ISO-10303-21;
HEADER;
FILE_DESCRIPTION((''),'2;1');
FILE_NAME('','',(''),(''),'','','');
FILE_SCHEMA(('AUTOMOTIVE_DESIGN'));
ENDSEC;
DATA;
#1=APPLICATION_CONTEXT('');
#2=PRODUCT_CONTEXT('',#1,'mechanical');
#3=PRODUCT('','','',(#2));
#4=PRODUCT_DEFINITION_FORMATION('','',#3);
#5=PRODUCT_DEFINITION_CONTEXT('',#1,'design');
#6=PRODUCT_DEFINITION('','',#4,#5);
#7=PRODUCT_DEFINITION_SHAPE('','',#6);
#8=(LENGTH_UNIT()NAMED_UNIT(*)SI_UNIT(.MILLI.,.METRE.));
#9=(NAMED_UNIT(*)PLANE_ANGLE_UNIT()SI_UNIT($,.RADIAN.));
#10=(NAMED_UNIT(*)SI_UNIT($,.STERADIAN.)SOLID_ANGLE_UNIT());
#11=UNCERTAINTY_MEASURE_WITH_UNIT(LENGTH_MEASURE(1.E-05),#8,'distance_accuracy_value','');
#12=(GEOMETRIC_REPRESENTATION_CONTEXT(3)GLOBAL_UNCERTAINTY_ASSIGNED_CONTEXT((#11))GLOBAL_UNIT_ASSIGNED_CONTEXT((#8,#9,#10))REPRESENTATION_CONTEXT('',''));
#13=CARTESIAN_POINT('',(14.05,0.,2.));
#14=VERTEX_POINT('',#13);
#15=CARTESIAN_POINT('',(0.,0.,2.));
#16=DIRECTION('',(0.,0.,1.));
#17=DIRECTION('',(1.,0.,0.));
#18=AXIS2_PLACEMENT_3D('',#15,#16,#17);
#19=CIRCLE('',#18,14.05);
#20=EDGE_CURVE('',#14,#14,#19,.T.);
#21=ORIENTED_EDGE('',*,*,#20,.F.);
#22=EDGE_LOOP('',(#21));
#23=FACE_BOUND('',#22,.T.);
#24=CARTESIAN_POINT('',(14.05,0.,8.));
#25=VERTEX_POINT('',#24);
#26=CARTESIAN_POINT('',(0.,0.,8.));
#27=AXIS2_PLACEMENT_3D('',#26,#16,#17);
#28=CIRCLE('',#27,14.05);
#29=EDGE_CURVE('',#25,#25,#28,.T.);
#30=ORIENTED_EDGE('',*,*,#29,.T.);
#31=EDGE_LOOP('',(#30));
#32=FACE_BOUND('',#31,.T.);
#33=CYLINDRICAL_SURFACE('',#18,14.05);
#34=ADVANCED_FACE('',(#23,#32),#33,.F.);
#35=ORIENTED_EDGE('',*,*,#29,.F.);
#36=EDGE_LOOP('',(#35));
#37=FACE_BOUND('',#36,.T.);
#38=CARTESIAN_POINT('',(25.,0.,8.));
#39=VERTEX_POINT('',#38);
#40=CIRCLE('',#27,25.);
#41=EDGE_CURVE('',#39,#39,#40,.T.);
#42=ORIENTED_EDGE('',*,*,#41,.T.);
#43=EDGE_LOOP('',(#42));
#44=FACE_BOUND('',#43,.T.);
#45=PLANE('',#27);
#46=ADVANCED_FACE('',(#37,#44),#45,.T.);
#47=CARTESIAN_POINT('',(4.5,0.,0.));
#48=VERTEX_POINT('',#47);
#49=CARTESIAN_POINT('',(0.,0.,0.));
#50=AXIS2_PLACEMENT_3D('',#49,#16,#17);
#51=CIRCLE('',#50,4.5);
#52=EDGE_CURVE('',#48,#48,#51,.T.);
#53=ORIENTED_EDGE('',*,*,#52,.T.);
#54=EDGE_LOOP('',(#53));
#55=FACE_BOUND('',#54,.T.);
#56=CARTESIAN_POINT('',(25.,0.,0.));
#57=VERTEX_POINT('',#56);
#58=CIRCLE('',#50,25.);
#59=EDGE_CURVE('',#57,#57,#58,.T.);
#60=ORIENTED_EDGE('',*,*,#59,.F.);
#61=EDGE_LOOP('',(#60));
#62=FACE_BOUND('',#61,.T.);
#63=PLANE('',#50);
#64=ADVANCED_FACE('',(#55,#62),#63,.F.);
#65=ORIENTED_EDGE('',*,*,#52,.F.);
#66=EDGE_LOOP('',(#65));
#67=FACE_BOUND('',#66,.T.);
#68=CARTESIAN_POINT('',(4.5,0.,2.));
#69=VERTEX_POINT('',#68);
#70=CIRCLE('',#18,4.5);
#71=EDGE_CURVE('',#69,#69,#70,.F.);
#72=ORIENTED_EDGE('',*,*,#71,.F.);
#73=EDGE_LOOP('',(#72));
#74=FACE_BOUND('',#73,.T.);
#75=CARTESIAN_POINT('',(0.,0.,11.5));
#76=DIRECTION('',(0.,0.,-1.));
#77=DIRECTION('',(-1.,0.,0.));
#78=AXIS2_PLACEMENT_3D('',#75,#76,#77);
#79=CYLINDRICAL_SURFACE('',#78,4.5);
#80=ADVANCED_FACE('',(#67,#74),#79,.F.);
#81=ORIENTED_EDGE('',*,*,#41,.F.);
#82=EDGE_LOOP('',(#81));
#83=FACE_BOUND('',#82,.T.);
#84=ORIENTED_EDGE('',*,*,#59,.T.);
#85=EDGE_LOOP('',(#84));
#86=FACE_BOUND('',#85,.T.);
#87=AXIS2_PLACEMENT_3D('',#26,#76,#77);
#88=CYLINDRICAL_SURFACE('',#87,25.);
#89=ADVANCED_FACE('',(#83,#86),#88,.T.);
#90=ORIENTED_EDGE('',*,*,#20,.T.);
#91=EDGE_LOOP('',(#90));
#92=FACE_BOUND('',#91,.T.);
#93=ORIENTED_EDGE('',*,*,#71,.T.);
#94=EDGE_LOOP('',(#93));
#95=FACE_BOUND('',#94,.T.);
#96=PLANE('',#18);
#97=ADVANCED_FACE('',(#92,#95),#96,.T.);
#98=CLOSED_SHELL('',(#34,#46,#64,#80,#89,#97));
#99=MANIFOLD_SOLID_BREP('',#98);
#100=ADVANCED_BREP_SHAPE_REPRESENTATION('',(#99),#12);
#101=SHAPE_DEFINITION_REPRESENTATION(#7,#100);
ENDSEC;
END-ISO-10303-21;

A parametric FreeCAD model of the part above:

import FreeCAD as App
import Part
import Sketcher
Q = App.Units.Quantity

doc = App.newDocument("Part")
body = doc.addObject("PartDesign::Body", "Body")

# Sketch on XY plane
sketch1 = body.newObject("Sketcher::SketchObject", "Sketch")
sketch1.AttachmentSupport = (doc.getObject("XY_Plane"), [""])
sketch1.MapMode = "FlatFace"
sketch1.addGeometry(Part.Circle(App.Vector(0, 0, 0), App.Vector(0, 0, 1), 25), False)
sketch1.addConstraint(Sketcher.Constraint("Coincident", 0, 3, -1, 1))
sketch1.addConstraint(Sketcher.Constraint("Diameter", 0, Q("50 mm")))
pad1 = body.newObject("PartDesign::Pad", "Pad")
pad1.Profile = sketch1
pad1.Length = 8

# Sketch on XY plane
sketch2 = body.newObject("Sketcher::SketchObject", "Sketch001")
sketch2.AttachmentSupport = (doc.getObject("XY_Plane"), [""])
sketch2.MapMode = "FlatFace"
sketch2.AttachmentOffset = App.Placement(App.Vector(0, 0, 8), App.Rotation())
sketch2.addGeometry(Part.Circle(App.Vector(0, 0, 0), App.Vector(0, 0, 1), 14), False)
sketch2.addConstraint(Sketcher.Constraint("Coincident", 0, 3, -1, 1))
sketch2.addConstraint(Sketcher.Constraint("Diameter", 0, Q("28.1 mm")))
pocket1 = body.newObject("PartDesign::Pocket", "Pocket")
pocket1.Profile = sketch2
pocket1.Length = 6

# Sketch on XY plane
sketch3 = body.newObject("Sketcher::SketchObject", "Sketch002")
sketch3.AttachmentSupport = (doc.getObject("XY_Plane"), [""])
sketch3.MapMode = "FlatFace"
sketch3.addGeometry(Part.Circle(App.Vector(0, 0, 0), App.Vector(0, 0, 1), 4.5), False)
sketch3.addConstraint(Sketcher.Constraint("Coincident", 0, 3, -1, 1))
sketch3.addConstraint(Sketcher.Constraint("Diameter", 0, Q("9 mm")))
pocket2 = body.newObject("PartDesign::Pocket", "Pocket001")
pocket2.Profile = sketch3
pocket2.Length = 11.5
pocket2.Reversed = True

doc.recompute()
